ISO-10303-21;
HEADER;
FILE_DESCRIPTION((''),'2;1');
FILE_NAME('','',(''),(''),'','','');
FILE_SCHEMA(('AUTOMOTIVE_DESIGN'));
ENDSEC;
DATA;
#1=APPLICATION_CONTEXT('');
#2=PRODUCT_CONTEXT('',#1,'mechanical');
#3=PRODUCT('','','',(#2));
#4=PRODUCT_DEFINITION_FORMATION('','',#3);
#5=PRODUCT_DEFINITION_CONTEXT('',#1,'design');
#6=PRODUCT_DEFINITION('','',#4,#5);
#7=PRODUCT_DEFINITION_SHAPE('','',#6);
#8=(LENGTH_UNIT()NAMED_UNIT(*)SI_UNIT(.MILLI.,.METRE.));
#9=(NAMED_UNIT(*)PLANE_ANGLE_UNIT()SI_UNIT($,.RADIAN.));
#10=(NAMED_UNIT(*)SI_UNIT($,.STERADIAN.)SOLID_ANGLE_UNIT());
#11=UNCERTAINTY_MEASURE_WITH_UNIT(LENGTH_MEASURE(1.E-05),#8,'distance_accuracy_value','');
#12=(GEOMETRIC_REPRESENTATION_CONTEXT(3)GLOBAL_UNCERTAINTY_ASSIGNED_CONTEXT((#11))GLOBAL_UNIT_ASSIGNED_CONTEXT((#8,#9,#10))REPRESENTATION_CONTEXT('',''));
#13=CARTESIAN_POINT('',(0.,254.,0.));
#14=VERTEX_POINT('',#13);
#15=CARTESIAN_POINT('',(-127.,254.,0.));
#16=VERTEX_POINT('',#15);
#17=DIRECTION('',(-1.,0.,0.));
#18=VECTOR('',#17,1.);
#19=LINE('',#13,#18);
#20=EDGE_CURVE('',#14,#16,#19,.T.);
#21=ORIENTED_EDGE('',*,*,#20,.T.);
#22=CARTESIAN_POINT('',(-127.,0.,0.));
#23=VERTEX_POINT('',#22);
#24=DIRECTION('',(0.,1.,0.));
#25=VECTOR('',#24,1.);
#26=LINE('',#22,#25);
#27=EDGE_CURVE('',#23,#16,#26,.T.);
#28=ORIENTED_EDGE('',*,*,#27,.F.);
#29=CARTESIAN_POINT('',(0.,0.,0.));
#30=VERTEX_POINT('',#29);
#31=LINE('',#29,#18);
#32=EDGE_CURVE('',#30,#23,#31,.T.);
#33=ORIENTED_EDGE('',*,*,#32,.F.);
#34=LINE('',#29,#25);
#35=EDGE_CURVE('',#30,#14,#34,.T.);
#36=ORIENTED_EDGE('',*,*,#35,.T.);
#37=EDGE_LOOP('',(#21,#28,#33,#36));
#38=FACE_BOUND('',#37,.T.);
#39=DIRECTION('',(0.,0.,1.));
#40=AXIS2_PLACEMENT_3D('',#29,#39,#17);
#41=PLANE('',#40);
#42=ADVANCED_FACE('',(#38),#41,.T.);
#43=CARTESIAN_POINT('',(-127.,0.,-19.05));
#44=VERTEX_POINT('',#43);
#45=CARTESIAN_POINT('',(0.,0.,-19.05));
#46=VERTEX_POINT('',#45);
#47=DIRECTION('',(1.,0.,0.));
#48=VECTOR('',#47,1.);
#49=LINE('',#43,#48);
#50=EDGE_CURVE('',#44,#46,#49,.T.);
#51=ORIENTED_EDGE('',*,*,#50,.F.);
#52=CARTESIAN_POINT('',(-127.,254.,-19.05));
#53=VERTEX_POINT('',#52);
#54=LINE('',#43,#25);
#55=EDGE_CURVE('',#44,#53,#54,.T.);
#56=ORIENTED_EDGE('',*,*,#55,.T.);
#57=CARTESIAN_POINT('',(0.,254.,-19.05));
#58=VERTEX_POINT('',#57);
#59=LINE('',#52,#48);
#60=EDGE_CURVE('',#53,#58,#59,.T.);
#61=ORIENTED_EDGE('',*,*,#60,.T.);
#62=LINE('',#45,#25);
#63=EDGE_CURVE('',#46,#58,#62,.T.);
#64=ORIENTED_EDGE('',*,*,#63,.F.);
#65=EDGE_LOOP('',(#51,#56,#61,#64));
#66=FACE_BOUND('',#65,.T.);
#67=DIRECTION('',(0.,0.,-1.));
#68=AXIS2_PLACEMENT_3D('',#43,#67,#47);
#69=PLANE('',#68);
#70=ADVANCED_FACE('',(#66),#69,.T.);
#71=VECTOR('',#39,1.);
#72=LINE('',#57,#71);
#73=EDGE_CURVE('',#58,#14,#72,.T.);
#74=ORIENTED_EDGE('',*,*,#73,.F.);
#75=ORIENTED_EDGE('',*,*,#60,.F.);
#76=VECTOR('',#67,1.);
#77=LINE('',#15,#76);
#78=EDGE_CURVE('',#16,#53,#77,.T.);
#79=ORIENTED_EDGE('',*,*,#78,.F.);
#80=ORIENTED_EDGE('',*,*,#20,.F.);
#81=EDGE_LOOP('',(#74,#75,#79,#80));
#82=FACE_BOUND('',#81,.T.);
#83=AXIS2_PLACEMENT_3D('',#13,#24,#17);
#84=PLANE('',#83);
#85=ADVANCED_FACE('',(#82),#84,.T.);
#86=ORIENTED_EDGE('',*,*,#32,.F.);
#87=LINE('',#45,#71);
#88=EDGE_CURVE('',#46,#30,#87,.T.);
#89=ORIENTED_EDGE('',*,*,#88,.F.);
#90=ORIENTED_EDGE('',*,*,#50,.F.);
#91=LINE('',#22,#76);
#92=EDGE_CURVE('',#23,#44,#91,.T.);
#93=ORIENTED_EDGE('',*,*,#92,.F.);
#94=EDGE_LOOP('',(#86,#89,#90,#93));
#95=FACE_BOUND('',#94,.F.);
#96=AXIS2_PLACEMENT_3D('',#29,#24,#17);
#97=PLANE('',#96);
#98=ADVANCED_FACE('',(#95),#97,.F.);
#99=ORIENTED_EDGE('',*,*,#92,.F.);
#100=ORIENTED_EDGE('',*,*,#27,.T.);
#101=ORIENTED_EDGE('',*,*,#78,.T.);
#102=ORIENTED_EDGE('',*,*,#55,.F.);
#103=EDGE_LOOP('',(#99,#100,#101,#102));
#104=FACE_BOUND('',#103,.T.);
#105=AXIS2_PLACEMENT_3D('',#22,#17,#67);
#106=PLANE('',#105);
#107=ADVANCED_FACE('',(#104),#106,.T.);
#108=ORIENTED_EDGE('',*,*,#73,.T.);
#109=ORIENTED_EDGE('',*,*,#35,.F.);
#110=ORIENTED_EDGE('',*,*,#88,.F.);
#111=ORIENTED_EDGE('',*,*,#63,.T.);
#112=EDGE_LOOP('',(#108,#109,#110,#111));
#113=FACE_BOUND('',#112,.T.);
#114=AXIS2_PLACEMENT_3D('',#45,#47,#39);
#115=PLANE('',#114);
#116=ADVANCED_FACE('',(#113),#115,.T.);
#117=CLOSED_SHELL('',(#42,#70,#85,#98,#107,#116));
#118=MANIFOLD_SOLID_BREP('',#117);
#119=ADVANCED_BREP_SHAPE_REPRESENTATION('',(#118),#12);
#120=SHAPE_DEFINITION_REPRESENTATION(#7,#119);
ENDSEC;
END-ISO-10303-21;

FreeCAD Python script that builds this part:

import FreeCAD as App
import Part
import Sketcher
Q = App.Units.Quantity


def add_polygon(sketch, points):
    """Adds a closed chain of lines whose ends are joined by coincident constraints."""
    first, n = sketch.GeometryCount, len(points)
    for a, b in zip(points, points[1:] + points[:1]):
        sketch.addGeometry(Part.LineSegment(App.Vector(*a, 0), App.Vector(*b, 0)), False)
    for i in range(n):
        sketch.addConstraint(Sketcher.Constraint("Coincident", first + i, 2, first + (i + 1) % n, 1))

doc = App.newDocument("Part")
body = doc.addObject("PartDesign::Body", "Body")

# Sketch on XZ plane
sketch1 = body.newObject("Sketcher::SketchObject", "Sketch")
sketch1.AttachmentSupport = (doc.getObject("XZ_Plane"), [""])
sketch1.MapMode = "FlatFace"
add_polygon(sketch1, [(-127, 0), (0, 0), (0, -19.05), (-127, -19.05)])  # lines 0-3
sketch1.addConstraint([
    Sketcher.Constraint("Horizontal", 0),
    Sketcher.Constraint("Vertical", 1),
    Sketcher.Constraint("Horizontal", 2),
    Sketcher.Constraint("Vertical", 3),
    Sketcher.Constraint("Coincident", 0, 2, -1, 1),
    Sketcher.Constraint("DistanceX", 0, 1, 0, 2, Q("5 in")),
    Sketcher.Constraint("DistanceY", 1, 2, 1, 1, Q("0.75 in")),
])
pad1 = body.newObject("PartDesign::Pad", "Pad")
pad1.Profile = sketch1
pad1.Length = Q("10 in")
pad1.Reversed = True

doc.recompute()
